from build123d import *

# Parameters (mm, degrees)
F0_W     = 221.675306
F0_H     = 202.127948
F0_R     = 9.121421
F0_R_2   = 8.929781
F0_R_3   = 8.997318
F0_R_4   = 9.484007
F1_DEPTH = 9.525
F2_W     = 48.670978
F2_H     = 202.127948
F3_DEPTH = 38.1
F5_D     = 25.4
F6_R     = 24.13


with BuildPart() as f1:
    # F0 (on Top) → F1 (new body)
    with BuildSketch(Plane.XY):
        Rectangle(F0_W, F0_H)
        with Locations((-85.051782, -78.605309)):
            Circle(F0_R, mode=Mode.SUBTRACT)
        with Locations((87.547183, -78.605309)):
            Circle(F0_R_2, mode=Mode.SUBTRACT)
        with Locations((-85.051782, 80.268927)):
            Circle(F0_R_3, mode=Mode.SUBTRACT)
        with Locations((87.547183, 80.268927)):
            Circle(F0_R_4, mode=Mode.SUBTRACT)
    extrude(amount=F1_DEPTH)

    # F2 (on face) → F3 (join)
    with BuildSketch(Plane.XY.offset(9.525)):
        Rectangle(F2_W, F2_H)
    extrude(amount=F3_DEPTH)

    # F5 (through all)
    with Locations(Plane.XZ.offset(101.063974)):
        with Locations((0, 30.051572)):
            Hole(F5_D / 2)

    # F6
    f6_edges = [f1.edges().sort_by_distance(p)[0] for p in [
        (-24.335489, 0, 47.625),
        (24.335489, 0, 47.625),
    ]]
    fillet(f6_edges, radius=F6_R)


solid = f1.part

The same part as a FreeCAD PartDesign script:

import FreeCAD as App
import Part
import Sketcher
from FreeCAD import Vector
Q = App.Units.Quantity


def edges_at(feature, points):
    """Names of the edges that pass closest to the given points."""
    edges = feature.Shape.Edges
    near = lambda p: min(range(len(edges)), key=lambda i: edges[i].distToShape(Part.Vertex(*p))[0])
    return sorted({f"Edge{near(p) + 1}" for p in points})

doc = App.newDocument("Part")
body = doc.addObject("PartDesign::Body", "Body")

# Sketch on XY plane
sketch1 = body.newObject("Sketcher::SketchObject", "Sketch")
sketch1.AttachmentSupport = (doc.getObject("XY_Plane"), [""])
sketch1.MapMode = "FlatFace"
sketch1.addGeometry(Part.LineSegment(Vector(-111, 101, 0), Vector(-111, -101, 0)), False)
sketch1.addGeometry(Part.LineSegment(Vector(-111, -101, 0), Vector(111, -101, 0)), False)
sketch1.addGeometry(Part.LineSegment(Vector(111, -101, 0), Vector(111, 101, 0)), False)
sketch1.addGeometry(Part.LineSegment(Vector(111, 101, 0), Vector(-111, 101, 0)), False)
sketch1.addGeometry(Part.Circle(Vector(-85, -79, 0), Vector(0, 0, 1), 9), False)
sketch1.addGeometry(Part.Circle(Vector(88, -79, 0), Vector(0, 0, 1), 9), False)
sketch1.addGeometry(Part.Circle(Vector(-85, 80, 0), Vector(0, 0, 1), 9), False)
sketch1.addGeometry(Part.Circle(Vector(88, 80, 0), Vector(0, 0, 1), 9), False)
sketch1.addConstraint(Sketcher.Constraint("Coincident", 0, 2, 1, 1))
sketch1.addConstraint(Sketcher.Constraint("Coincident", 1, 2, 2, 1))
sketch1.addConstraint(Sketcher.Constraint("Coincident", 2, 2, 3, 1))
sketch1.addConstraint(Sketcher.Constraint("Coincident", 3, 2, 0, 1))
sketch1.addConstraint(Sketcher.Constraint("Vertical", 0))
sketch1.addConstraint(Sketcher.Constraint("Horizontal", 1))
sketch1.addConstraint(Sketcher.Constraint("Vertical", 2))
sketch1.addConstraint(Sketcher.Constraint("Horizontal", 3))
sketch1.addConstraint(Sketcher.Constraint("Symmetric", 0, 2, 2, 2, -1, 1))
sketch1.addConstraint(Sketcher.Constraint("Horizontal", 4, 3, 5, 3))
sketch1.addConstraint(Sketcher.Constraint("Horizontal", 6, 3, 7, 3))
sketch1.addConstraint(Sketcher.Constraint("Vertical", 4, 3, 6, 3))
sketch1.addConstraint(Sketcher.Constraint("Vertical", 5, 3, 7, 3))
sketch1.addConstraint(Sketcher.Constraint("Diameter", 4, Q("18.242842 mm")))
sketch1.addConstraint(Sketcher.Constraint("Diameter", 5, Q("17.859562 mm")))
sketch1.addConstraint(Sketcher.Constraint("Diameter", 6, Q("17.994636 mm")))
sketch1.addConstraint(Sketcher.Constraint("Diameter", 7, Q("18.968014 mm")))
sketch1.addConstraint(Sketcher.Constraint("DistanceY", 0, 2, 0, 1, Q("202.127948 mm")))
sketch1.addConstraint(Sketcher.Constraint("DistanceY", 0, 2, 6, 3, Q("181.332901 mm")))
sketch1.addConstraint(Sketcher.Constraint("DistanceX", 1, 1, 1, 2, Q("221.675306 mm")))
sketch1.addConstraint(Sketcher.Constraint("DistanceY", 4, 3, -1, 1, Q("78.605309 mm")))
sketch1.addConstraint(Sketcher.Constraint("DistanceX", 0, 2, 4, 3, Q("25.785871 mm")))
sketch1.addConstraint(Sketcher.Constraint("DistanceX", 5, 3, 1, 2, Q("23.29047 mm")))
pad1 = body.newObject("PartDesign::Pad", "Pad")
pad1.Profile = sketch1
pad1.Length = Q("0.375 in")

# Sketch on XY plane
sketch2 = body.newObject("Sketcher::SketchObject", "Sketch001")
sketch2.AttachmentSupport = (doc.getObject("XY_Plane"), [""])
sketch2.MapMode = "FlatFace"
sketch2.AttachmentOffset = App.Placement(Vector(0, 0, 0.375 * 25.4), App.Rotation())
sketch2.addGeometry(Part.LineSegment(Vector(-24, 101, 0), Vector(-24, -101, 0)), False)
sketch2.addGeometry(Part.LineSegment(Vector(-24, -101, 0), Vector(24, -101, 0)), False)
sketch2.addGeometry(Part.LineSegment(Vector(24, -101, 0), Vector(24, 101, 0)), False)
sketch2.addGeometry(Part.LineSegment(Vector(24, 101, 0), Vector(-24, 101, 0)), False)
sketch2.addConstraint(Sketcher.Constraint("Coincident", 0, 2, 1, 1))
sketch2.addConstraint(Sketcher.Constraint("Coincident", 1, 2, 2, 1))
sketch2.addConstraint(Sketcher.Constraint("Coincident", 2, 2, 3, 1))
sketch2.addConstraint(Sketcher.Constraint("Coincident", 3, 2, 0, 1))
sketch2.addConstraint(Sketcher.Constraint("Vertical", 0))
sketch2.addConstraint(Sketcher.Constraint("Horizontal", 1))
sketch2.addConstraint(Sketcher.Constraint("Vertical", 2))
sketch2.addConstraint(Sketcher.Constraint("Horizontal", 3))
sketch2.addConstraint(Sketcher.Constraint("Symmetric", 0, 2, 2, 2, -1, 1))
sketch2.addConstraint(Sketcher.Constraint("DistanceY", 0, 2, 0, 1, Q("202.127948 mm")))
sketch2.addConstraint(Sketcher.Constraint("DistanceX", 1, 1, 1, 2, Q("48.670978 mm")))
pad2 = body.newObject("PartDesign::Pad", "Pad001")
pad2.Profile = sketch2
pad2.Length = Q("1.5 in")

# Sketch on XZ plane
sketch3 = body.newObject("Sketcher::SketchObject", "Sketch002")
sketch3.AttachmentSupport = (doc.getObject("XZ_Plane"), [""])
sketch3.MapMode = "FlatFace"
sketch3.AttachmentOffset = App.Placement(Vector(0, 0, 101.063974), App.Rotation())
sketch3.addGeometry(Part.Circle(Vector(0, 30, 0), Vector(0, 0, 1), 13), False)
sketch3.addConstraint(Sketcher.Constraint("PointOnObject", 0, 3, -2))
sketch3.addConstraint(Sketcher.Constraint("Diameter", 0, Q("1 in")))
sketch3.addConstraint(Sketcher.Constraint("DistanceY", -1, 1, 0, 3, Q("30.051572 mm")))
doc.recompute()
hole = body.newObject("PartDesign::Hole", "Hole")
hole.Profile = sketch3
hole.ThreadType = "None"
hole.Diameter = Q("1 in")
hole.DepthType = "ThroughAll"
doc.recompute()

fillet = body.newObject("PartDesign::Fillet", "Fillet")
fillet.Base = (hole, edges_at(hole, [(-24.335, 0, 47.625), (24.335, 0, 47.625)]))
fillet.Radius = Q("0.95 in")

doc.recompute()
